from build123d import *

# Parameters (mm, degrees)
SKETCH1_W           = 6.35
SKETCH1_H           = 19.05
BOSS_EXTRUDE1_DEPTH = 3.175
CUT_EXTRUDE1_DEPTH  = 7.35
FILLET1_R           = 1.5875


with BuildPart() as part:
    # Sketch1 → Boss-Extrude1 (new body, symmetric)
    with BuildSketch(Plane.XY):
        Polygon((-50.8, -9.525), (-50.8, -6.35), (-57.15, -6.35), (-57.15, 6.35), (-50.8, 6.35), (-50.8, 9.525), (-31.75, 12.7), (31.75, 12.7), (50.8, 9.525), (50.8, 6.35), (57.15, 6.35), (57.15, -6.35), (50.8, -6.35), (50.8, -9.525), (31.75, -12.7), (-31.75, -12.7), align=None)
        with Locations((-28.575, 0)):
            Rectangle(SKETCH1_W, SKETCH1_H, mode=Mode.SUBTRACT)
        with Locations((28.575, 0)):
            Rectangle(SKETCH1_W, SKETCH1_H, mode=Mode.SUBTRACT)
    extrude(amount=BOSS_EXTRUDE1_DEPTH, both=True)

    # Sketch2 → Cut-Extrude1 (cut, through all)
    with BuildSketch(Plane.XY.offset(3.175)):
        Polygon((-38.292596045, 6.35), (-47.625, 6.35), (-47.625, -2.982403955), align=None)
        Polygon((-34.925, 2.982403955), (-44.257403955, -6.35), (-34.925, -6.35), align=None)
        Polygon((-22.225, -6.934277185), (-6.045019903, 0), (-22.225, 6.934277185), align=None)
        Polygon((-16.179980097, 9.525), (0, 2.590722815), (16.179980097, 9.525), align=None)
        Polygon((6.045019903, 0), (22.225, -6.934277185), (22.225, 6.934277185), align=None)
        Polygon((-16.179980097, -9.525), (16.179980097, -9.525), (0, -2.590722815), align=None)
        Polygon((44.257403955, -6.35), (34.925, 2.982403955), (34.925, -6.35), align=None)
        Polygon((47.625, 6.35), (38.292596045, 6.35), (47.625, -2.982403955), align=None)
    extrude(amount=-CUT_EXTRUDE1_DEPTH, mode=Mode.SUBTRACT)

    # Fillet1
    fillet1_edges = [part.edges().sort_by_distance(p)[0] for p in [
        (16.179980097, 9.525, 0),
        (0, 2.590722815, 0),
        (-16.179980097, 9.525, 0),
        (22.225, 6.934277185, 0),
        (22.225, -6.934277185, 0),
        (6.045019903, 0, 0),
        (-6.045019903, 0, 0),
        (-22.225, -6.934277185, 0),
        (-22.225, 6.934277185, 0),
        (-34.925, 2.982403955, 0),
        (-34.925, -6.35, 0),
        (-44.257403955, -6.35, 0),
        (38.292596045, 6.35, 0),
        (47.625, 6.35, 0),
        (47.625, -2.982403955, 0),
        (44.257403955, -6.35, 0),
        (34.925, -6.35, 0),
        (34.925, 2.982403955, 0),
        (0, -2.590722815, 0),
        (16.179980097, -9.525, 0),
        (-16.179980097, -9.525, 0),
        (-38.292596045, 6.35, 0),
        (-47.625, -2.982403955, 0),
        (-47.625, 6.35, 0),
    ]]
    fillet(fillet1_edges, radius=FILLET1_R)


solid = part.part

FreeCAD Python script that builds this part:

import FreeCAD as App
import Part
import Sketcher

V = App.Vector
Q = App.Units.Quantity


def edges_at(feature, points):
    """Names of the edges that pass closest to the given points."""
    edges = feature.Shape.Edges
    near = lambda p: min(range(len(edges)), key=lambda i: edges[i].distToShape(Part.Vertex(*p))[0])
    return sorted({f"Edge{near(p) + 1}" for p in points})


def add_polygon(sketch, points):
    """Adds a closed chain of lines whose ends are joined by coincident constraints."""
    first, n = sketch.GeometryCount, len(points)
    for a, b in zip(points, points[1:] + points[:1]):
        sketch.addGeometry(Part.LineSegment(App.Vector(*a, 0), App.Vector(*b, 0)), False)
    for i in range(n):
        sketch.addConstraint(Sketcher.Constraint("Coincident", first + i, 2, first + (i + 1) % n, 1))

doc = App.newDocument("Part")
body = doc.addObject("PartDesign::Body", "Body")

sketch1 = body.newObject("Sketcher::SketchObject", "Sketch")
sketch1.AttachmentSupport = (doc.getObject("XY_Plane"), [""])
sketch1.MapMode = "FlatFace"
add_polygon(sketch1, [(-50.8, -6.35), (-50.8, -9.525), (-31.75, -12.7), (31.75, -12.7), (50.8, -9.525), (50.8, -6.35), (57.15, -6.35), (57.15, 6.35), (50.8, 6.35), (50.8, 9.525), (31.75, 12.7), (-31.75, 12.7), (-50.8, 9.525), (-50.8, 6.35), (-57.15, 6.35), (-57.15, -6.35)])
add_polygon(sketch1, [(25.4, -9.525), (25.4, 9.525), (31.75, 9.525), (31.75, -9.525)])
add_polygon(sketch1, [(-31.75, -9.525), (-31.75, 9.525), (-25.4, 9.525), (-25.4, -9.525)])
sketch1.addConstraint(Sketcher.Constraint("Vertical", 0))
sketch1.addConstraint(Sketcher.Constraint("Horizontal", 2))
sketch1.addConstraint(Sketcher.Constraint("Vertical", 4))
sketch1.addConstraint(Sketcher.Constraint("Horizontal", 5))
sketch1.addConstraint(Sketcher.Constraint("Vertical", 6))
sketch1.addConstraint(Sketcher.Constraint("Horizontal", 7))
sketch1.addConstraint(Sketcher.Constraint("Vertical", 8))
sketch1.addConstraint(Sketcher.Constraint("Horizontal", 10))
sketch1.addConstraint(Sketcher.Constraint("Vertical", 12))
sketch1.addConstraint(Sketcher.Constraint("Horizontal", 13))
sketch1.addConstraint(Sketcher.Constraint("Vertical", 14))
sketch1.addConstraint(Sketcher.Constraint("Horizontal", 15))
sketch1.addConstraint(Sketcher.Constraint("Vertical", 16))
sketch1.addConstraint(Sketcher.Constraint("Horizontal", 17))
sketch1.addConstraint(Sketcher.Constraint("Vertical", 18))
sketch1.addConstraint(Sketcher.Constraint("Horizontal", 19))
sketch1.addConstraint(Sketcher.Constraint("Vertical", 20))
sketch1.addConstraint(Sketcher.Constraint("Horizontal", 21))
sketch1.addConstraint(Sketcher.Constraint("Vertical", 22))
sketch1.addConstraint(Sketcher.Constraint("Horizontal", 23))
sketch1.addConstraint(Sketcher.Constraint("Symmetric", 0, 2, 8, 2, -1, 1))
sketch1.addConstraint(Sketcher.Constraint("Symmetric", 1, 2, 9, 2, -1, 1))
sketch1.addConstraint(Sketcher.Constraint("Symmetric", 3, 2, 11, 2, -1, 1))
sketch1.addConstraint(Sketcher.Constraint("Symmetric", 5, 2, 13, 2, -1, 1))
sketch1.addConstraint(Sketcher.Constraint("Symmetric", 18, 2, 20, 2, -1, 1))
sketch1.addConstraint(Sketcher.Constraint("Symmetric", 16, 2, 22, 2, -1, 1))
sketch1.addConstraint(Sketcher.Constraint("Symmetric", 0, 2, 3, 2, -2))
sketch1.addConstraint(Sketcher.Constraint("Parallel", 3, 11))
sketch1.addConstraint(Sketcher.Constraint("Horizontal", 7, 2, 12, 2))
sketch1.addConstraint(Sketcher.Constraint("Horizontal", 5, 2, 14, 2))
sketch1.addConstraint(Sketcher.Constraint("Horizontal", 11, 2, 16, 2))
sketch1.addConstraint(Sketcher.Constraint("Horizontal", 3, 2, 18, 2))
sketch1.addConstraint(Sketcher.Constraint("Vertical", 2, 2, 9, 2))
sketch1.addConstraint(Sketcher.Constraint("Vertical", 9, 2, 17, 2))
sketch1.addConstraint(Sketcher.Constraint("Equal", 15, 17))
sketch1.addConstraint(Sketcher.Constraint("DistanceX", 2, 1, 2, 2, Q("2.5 in")))
sketch1.addConstraint(Sketcher.Constraint("DistanceY", 6, 1, 6, 2, Q("0.5 in")))
sketch1.addConstraint(Sketcher.Constraint("DistanceX", 0, 2, -1, 1, Q("2 in")))
sketch1.addConstraint(Sketcher.Constraint("DistanceX", -1, 1, 16, 2, Q("1 in")))
sketch1.addConstraint(Sketcher.Constraint("DistanceY", 2, 2, 9, 2, Q("1 in")))
sketch1.addConstraint(Sketcher.Constraint("DistanceY", 16, 1, 16, 2, Q("0.75 in")))
pad1 = body.newObject("PartDesign::Pad", "Pad")
pad1.Profile = sketch1
pad1.Length = Q("0.25 in")
pad1.Midplane = True

sketch2 = body.newObject("Sketcher::SketchObject", "Sketch001")
sketch2.AttachmentSupport = (doc.getObject("XY_Plane"), [""])
sketch2.MapMode = "FlatFace"
sketch2.AttachmentOffset = App.Placement(V(0, 0, 0.125 * 25.4), App.Rotation())
add_polygon(sketch2, [(-38.292596, 6.35), (-47.625, 6.35), (-47.625, -2.982404)])
add_polygon(sketch2, [(-34.925, 2.982404), (-44.257404, -6.35), (-34.925, -6.35)])
add_polygon(sketch2, [(-22.225, -6.934277), (-6.04502, 0), (-22.225, 6.934277)])
add_polygon(sketch2, [(-16.17998, 9.525), (0, 2.590723), (16.17998, 9.525)])
add_polygon(sketch2, [(6.04502, 0), (22.225, -6.934277), (22.225, 6.934277)])
add_polygon(sketch2, [(-16.17998, -9.525), (16.17998, -9.525), (0, -2.590723)])
add_polygon(sketch2, [(44.257404, -6.35), (34.925, 2.982404), (34.925, -6.35)])
add_polygon(sketch2, [(47.625, 6.35), (38.292596, 6.35), (47.625, -2.982404)])
sketch2.addConstraint(Sketcher.Constraint("Horizontal", 0))
sketch2.addConstraint(Sketcher.Constraint("Vertical", 1))
sketch2.addConstraint(Sketcher.Constraint("Horizontal", 4))
sketch2.addConstraint(Sketcher.Constraint("Vertical", 5))
sketch2.addConstraint(Sketcher.Constraint("Vertical", 8))
sketch2.addConstraint(Sketcher.Constraint("Horizontal", 11))
sketch2.addConstraint(Sketcher.Constraint("Vertical", 13))
sketch2.addConstraint(Sketcher.Constraint("Horizontal", 15))
sketch2.addConstraint(Sketcher.Constraint("Vertical", 19))
sketch2.addConstraint(Sketcher.Constraint("Horizontal", 20))
sketch2.addConstraint(Sketcher.Constraint("Horizontal", 21))
sketch2.addConstraint(Sketcher.Constraint("Vertical", 23))
sketch2.addConstraint(Sketcher.Constraint("Symmetric", 7, 2, 12, 2, -1, 1))
sketch2.addConstraint(Sketcher.Constraint("Symmetric", 6, 2, 14, 2, -1, 1))
sketch2.addConstraint(Sketcher.Constraint("Symmetric", 11, 2, 15, 2, -1, 1))
sketch2.addConstraint(Sketcher.Constraint("Symmetric", 9, 2, 16, 2, -1, 1))
sketch2.addConstraint(Sketcher.Constraint("Symmetric", 5, 2, 18, 2, -2))
sketch2.addConstraint(Sketcher.Constraint("Symmetric", 3, 2, 20, 2, -2))
sketch2.addConstraint(Sketcher.Constraint("Symmetric", 2, 2, 21, 2, -2))
sketch2.addConstraint(Sketcher.Constraint("Symmetric", 1, 2, 22, 2, -2))
sketch2.addConstraint(Sketcher.Constraint("PointOnObject", 6, 2, -1))
sketch2.addConstraint(Sketcher.Constraint("PointOnObject", 9, 2, -2))
sketch2.addConstraint(Sketcher.Constraint("Parallel", 2, 3))
sketch2.addConstraint(Sketcher.Constraint("Parallel", 7, 9))
sketch2.addConstraint(Sketcher.Constraint("Parallel", 6, 10))
sketch2.addConstraint(Sketcher.Constraint("Parallel", 10, 14))
sketch2.addConstraint(Sketcher.Constraint("Parallel", 14, 17))
sketch2.addConstraint(Sketcher.Constraint("Perpendicular", 3, 18))
sketch2.addConstraint(Sketcher.Constraint("Horizontal", 8, 2, 12, 2))
sketch2.addConstraint(Sketcher.Constraint("Equal", 0, 4))
sketch2.addConstraint(Sketcher.Constraint("Equal", 7, 9))
sketch2.addConstraint(Sketcher.Constraint("DistanceX", 0, 2, 7, 2, Q("1 in")))
sketch2.addConstraint(Sketcher.Constraint("DistanceY", 3, 2, 0, 2, Q("0.5 in")))
sketch2.addConstraint(Sketcher.Constraint("DistanceX", 1, 2, 4, 2, Q("0.5 in")))
sketch2.addConstraint(Sketcher.Constraint("DistanceY", -1, 1, 0, 2, Q("0.25 in")))
sketch2.addConstraint(Sketcher.Constraint("DistanceX", 8, 2, 12, 2, Q("1.75 in")))
sketch2.addConstraint(Sketcher.Constraint("DistanceY", 15, 2, 10, 2, Q("0.75 in")))
sketch2.addConstraint(Sketcher.Constraint("DistanceX", 11, 2, 11, 1, Q("32.35996 mm")))
sketch2.addConstraint(Sketcher.Constraint("DistanceX", 0, 2, 0, 1, Q("9.332404 mm")))
sketch2.addConstraint(Sketcher.Constraint("DistanceY", 8, 2, 8, 1, Q("13.868554 mm")))
pocket1 = body.newObject("PartDesign::Pocket", "Pocket")
pocket1.Profile = sketch2
pocket1.Type = "ThroughAll"
doc.recompute()

fillet = body.newObject("PartDesign::Fillet", "Fillet")
fillet.Base = (pocket1, edges_at(pocket1, [
    (16.18, 9.525, 0),
    (0, 2.591, 0),
    (-16.18, 9.525, 0),
    (22.225, 6.934, 0),
    (22.225, -6.934, 0),
    (6.045, 0, 0),
    (-6.045, 0, 0),
    (-22.225, -6.934, 0),
    (-22.225, 6.934, 0),
    (-34.925, 2.982, 0),
    (-34.925, -6.35, 0),
    (-44.257, -6.35, 0),
    (38.293, 6.35, 0),
    (47.625, 6.35, 0),
    (47.625, -2.982, 0),
    (44.257, -6.35, 0),
    (34.925, -6.35, 0),
    (34.925, 2.982, 0),
    (0, -2.591, 0),
    (16.18, -9.525, 0),
    (-16.18, -9.525, 0),
    (-38.293, 6.35, 0),
    (-47.625, -2.982, 0),
    (-47.625, 6.35, 0),
]))
fillet.Radius = Q("0.0625 in")

doc.recompute()
